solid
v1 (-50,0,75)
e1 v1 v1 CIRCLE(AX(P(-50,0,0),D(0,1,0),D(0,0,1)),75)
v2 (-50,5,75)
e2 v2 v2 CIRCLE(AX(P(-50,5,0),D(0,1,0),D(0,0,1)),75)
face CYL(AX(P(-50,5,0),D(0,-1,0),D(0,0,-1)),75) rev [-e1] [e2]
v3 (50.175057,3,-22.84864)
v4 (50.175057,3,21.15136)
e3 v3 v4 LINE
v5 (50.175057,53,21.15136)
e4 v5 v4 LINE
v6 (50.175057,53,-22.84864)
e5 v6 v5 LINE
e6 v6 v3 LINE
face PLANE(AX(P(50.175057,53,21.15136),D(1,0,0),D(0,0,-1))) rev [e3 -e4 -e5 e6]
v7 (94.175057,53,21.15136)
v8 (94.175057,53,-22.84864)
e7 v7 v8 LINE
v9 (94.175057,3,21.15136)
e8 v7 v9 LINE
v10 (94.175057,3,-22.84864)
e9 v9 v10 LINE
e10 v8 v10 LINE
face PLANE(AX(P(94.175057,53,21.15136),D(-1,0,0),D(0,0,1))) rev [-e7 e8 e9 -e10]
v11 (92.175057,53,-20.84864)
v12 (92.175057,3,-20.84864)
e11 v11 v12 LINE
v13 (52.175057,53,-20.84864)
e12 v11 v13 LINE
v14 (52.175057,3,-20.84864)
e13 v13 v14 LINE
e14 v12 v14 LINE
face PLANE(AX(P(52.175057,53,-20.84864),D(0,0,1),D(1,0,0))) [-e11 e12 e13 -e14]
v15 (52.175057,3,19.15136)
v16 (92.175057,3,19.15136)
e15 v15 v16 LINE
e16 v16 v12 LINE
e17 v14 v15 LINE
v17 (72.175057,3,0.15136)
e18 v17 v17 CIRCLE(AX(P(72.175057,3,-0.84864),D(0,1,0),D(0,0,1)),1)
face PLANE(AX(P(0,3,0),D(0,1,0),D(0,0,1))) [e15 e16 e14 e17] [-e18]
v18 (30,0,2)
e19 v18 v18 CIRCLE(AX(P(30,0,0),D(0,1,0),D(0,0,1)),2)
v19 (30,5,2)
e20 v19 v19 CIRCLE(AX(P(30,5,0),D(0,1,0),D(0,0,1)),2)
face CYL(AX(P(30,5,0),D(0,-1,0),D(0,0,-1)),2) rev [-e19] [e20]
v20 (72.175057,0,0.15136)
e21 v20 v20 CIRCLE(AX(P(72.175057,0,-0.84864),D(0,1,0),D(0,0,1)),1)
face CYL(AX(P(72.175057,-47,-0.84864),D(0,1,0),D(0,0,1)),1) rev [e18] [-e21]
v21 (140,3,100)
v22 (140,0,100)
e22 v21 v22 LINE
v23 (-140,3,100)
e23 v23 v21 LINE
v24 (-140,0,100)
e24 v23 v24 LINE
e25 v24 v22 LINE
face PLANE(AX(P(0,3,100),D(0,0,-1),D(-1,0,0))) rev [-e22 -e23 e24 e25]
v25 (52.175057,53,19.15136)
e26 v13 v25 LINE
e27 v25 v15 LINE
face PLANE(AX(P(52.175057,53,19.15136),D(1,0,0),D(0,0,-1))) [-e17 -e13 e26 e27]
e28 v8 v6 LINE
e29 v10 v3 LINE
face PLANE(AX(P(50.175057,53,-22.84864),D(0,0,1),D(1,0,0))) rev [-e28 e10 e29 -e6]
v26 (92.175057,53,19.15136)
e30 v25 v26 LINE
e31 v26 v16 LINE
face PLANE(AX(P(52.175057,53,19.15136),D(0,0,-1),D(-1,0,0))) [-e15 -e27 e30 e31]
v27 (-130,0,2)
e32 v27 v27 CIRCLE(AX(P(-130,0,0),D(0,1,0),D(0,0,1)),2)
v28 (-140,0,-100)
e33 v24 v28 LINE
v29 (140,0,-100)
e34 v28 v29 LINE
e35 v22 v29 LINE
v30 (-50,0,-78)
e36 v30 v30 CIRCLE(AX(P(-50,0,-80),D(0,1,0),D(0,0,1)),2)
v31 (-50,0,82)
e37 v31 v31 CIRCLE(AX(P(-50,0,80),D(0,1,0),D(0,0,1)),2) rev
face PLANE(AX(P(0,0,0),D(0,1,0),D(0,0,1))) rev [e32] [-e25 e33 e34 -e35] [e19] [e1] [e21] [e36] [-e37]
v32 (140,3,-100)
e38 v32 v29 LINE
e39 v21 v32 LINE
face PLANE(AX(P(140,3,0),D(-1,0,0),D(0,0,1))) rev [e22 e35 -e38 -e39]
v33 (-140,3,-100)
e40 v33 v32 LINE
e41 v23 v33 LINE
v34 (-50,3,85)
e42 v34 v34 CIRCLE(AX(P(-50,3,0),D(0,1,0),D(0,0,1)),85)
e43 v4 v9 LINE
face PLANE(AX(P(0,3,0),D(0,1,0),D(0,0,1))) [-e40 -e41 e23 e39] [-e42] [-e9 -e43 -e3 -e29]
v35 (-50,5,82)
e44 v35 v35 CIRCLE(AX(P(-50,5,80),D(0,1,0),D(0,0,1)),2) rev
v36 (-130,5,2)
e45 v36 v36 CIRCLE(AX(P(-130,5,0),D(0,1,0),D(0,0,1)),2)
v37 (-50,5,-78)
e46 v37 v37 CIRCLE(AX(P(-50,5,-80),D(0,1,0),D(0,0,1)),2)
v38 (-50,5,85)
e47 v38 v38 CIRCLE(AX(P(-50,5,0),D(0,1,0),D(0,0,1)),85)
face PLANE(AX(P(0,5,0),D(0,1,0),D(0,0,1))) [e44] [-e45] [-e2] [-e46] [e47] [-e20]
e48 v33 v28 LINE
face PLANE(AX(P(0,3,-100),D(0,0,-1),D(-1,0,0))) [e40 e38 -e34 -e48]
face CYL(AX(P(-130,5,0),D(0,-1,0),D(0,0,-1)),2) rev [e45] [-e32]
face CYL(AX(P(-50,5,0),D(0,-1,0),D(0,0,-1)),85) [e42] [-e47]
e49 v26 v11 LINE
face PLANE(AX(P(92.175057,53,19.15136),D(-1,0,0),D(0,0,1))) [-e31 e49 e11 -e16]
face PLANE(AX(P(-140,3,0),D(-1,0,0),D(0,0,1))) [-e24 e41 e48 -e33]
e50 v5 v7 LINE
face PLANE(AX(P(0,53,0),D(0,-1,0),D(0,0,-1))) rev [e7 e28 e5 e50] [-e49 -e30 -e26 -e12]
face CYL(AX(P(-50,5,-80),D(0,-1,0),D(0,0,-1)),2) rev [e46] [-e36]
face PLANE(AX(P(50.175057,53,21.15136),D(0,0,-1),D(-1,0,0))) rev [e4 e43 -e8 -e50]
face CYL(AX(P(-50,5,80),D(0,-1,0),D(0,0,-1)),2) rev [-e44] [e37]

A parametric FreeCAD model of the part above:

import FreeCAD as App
import Part
import Sketcher

V = App.Vector


def add_polygon(sketch, points):
    """Adds a closed chain of lines whose ends are joined by coincident constraints."""
    first, n = sketch.GeometryCount, len(points)
    for a, b in zip(points, points[1:] + points[:1]):
        sketch.addGeometry(Part.LineSegment(App.Vector(*a, 0), App.Vector(*b, 0)), False)
    for i in range(n):
        sketch.addConstraint(Sketcher.Constraint("Coincident", first + i, 2, first + (i + 1) % n, 1))

doc = App.newDocument("Part")
body = doc.addObject("PartDesign::Body", "Body")

# Sketch on XZ plane
sketch1 = body.newObject("Sketcher::SketchObject", "Sketch")
sketch1.AttachmentSupport = (doc.getObject("XZ_Plane"), [""])
sketch1.MapMode = "FlatFace"
add_polygon(sketch1, [(-140, -100), (-140, 100), (140, 100), (140, -100)])  # lines 0-3
sketch1.addGeometry(Part.Circle(V(-50, 0, 0), V(0, 0, 1), 85), False)  # 4
sketch1.addConstraint([
    Sketcher.Constraint("Vertical", 0),
    Sketcher.Constraint("Horizontal", 1),
    Sketcher.Constraint("Vertical", 2),
    Sketcher.Constraint("Horizontal", 3),
    Sketcher.Constraint("Symmetric", 0, 2, 2, 2, -1, 1),
    Sketcher.Constraint("PointOnObject", 4, 3, -1),
    Sketcher.Constraint("Diameter", 4, 170.0),
    Sketcher.Constraint("DistanceX", 1, 1, 1, 2, 280.0),
    Sketcher.Constraint("DistanceY", 0, 1, 0, 2, 200.0),
    Sketcher.Constraint("DistanceX", 4, 3, -1, 1, 50.0),
])
pad1 = body.newObject("PartDesign::Pad", "Pad")
pad1.Profile = sketch1
pad1.Length = 3
pad1.Reversed = True

# Sketch on XZ plane
sketch2 = body.newObject("Sketcher::SketchObject", "Sketch001")
sketch2.AttachmentSupport = (doc.getObject("XZ_Plane"), [""])
sketch2.MapMode = "FlatFace"
sketch2.addGeometry([
    Part.Circle(V(-50, 0, 0), V(0, 0, 1), 85),  # 0
    Part.Circle(V(-50, -80, 0), V(0, 0, 1), 2),  # 1
    Part.Circle(V(-130, 0, 0), V(0, 0, 1), 2),  # 2
    Part.Circle(V(30, 0, 0), V(0, 0, 1), 2),  # 3
    Part.Circle(V(-50, 0, 0), V(0, 0, 1), 75),  # 4
    Part.Circle(V(-50, 80, 0), V(0, 0, 1), 2),  # 5
], False)
sketch2.addConstraint([
    Sketcher.Constraint("Coincident", 4, 3, 0, 3),
    Sketcher.Constraint("Equal", 1, 2),
    Sketcher.Constraint("Equal", 2, 3),
    Sketcher.Constraint("Equal", 3, 5),
    Sketcher.Constraint("Symmetric", 1, 3, 5, 3, -1),
    Sketcher.Constraint("PointOnObject", 0, 3, -1),
    Sketcher.Constraint("PointOnObject", 2, 3, -1),
    Sketcher.Constraint("PointOnObject", 3, 3, -1),
    Sketcher.Constraint("Vertical", 0, 3, 1, 3),
    Sketcher.Constraint("Diameter", 0, 170.0),
    Sketcher.Constraint("Diameter", 1, 4.0),
    Sketcher.Constraint("Diameter", 4, 150.0),
    Sketcher.Constraint("DistanceX", 0, 3, -1, 1, 50.0),
    Sketcher.Constraint("DistanceY", 1, 3, -1, 1, 80.0),
    Sketcher.Constraint("DistanceX", 2, 3, -1, 1, 130.0),
    Sketcher.Constraint("DistanceX", -1, 1, 3, 3, 30.0),
])
pad2 = body.newObject("PartDesign::Pad", "Pad001")
pad2.Profile = sketch2
pad2.Length = 5
pad2.Reversed = True

# Sketch on XZ plane
sketch3 = body.newObject("Sketcher::SketchObject", "Sketch002")
sketch3.AttachmentSupport = (doc.getObject("XZ_Plane"), [""])
sketch3.MapMode = "FlatFace"
sketch3.AttachmentOffset = App.Placement(V(0, 0, -3), App.Rotation())
add_polygon(sketch3, [(50, -23), (50, 21), (94, 21), (94, -23)])  # lines 0-3
add_polygon(sketch3, [(92, 19), (52, 19), (52, -21), (92, -21)])  # lines 4-7
sketch3.addConstraint([
    Sketcher.Constraint("Vertical", 0),
    Sketcher.Constraint("Horizontal", 1),
    Sketcher.Constraint("Vertical", 2),
    Sketcher.Constraint("Horizontal", 3),
    Sketcher.Constraint("Horizontal", 4),
    Sketcher.Constraint("Vertical", 5),
    Sketcher.Constraint("Horizontal", 6),
    Sketcher.Constraint("Vertical", 7),
    Sketcher.Constraint("Equal", 3, 0),
    Sketcher.Constraint("Equal", 6, 5),
    Sketcher.Constraint("DistanceX", 1, 1, 1, 2, 44.0),
    Sketcher.Constraint("DistanceX", 4, 2, 4, 1, 40.0),
    Sketcher.Constraint("DistanceX", 0, 2, 4, 2, 2.0),
    Sketcher.Constraint("DistanceY", 4, 2, 0, 2, 2.0),
    Sketcher.Constraint("DistanceY", -1, 1, 0, 2, 21.15136),
    Sketcher.Constraint("DistanceX", -1, 1, 0, 2, 50.175057),
])
pad3 = body.newObject("PartDesign::Pad", "Pad002")
pad3.Profile = sketch3
pad3.Length = 50
pad3.Reversed = True

# Sketch on XZ plane
sketch4 = body.newObject("Sketcher::SketchObject", "Sketch003")
sketch4.AttachmentSupport = (doc.getObject("XZ_Plane"), [""])
sketch4.MapMode = "FlatFace"
sketch4.AttachmentOffset = App.Placement(V(0, 0, -3), App.Rotation())
sketch4.addGeometry(Part.Circle(V(72.2, -0.8, 0), V(0, 0, 1), 1), False)
sketch4.addConstraint([
    Sketcher.Constraint("Diameter", 0, 2.0),
    Sketcher.Constraint("DistanceY", 0, 3, -1, 1, 0.84864),
    Sketcher.Constraint("DistanceX", -1, 1, 0, 3, 72.175057),
])
pocket1 = body.newObject("PartDesign::Pocket", "Pocket")
pocket1.Profile = sketch4
pocket1.Length = 50
pocket1.Reversed = True

doc.recompute()
